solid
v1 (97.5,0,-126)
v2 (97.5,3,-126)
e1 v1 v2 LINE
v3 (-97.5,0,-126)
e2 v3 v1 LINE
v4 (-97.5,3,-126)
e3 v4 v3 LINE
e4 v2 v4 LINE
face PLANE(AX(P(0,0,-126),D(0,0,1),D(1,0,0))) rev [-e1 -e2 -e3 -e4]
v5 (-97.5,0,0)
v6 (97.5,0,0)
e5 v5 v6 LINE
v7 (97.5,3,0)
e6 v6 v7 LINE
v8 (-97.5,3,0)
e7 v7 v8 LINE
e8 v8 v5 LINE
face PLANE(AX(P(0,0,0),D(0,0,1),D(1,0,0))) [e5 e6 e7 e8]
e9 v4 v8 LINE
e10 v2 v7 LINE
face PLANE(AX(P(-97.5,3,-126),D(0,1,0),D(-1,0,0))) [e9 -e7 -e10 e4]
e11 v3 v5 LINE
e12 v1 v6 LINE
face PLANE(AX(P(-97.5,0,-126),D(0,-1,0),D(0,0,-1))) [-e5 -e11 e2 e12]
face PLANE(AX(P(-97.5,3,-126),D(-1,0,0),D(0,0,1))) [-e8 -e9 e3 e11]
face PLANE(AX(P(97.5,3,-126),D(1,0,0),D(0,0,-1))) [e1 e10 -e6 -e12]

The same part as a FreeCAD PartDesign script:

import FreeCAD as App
import Part
import Sketcher

doc = App.newDocument("Part")
params = doc.addObject("Spreadsheet::Sheet", "Params")
for row, (alias, value) in enumerate([
    ("sketch1_width", "195 mm"),
    ("sketch1_height", "3 mm"),
    ("pad1_length", "126 mm"),
], start=1):
    params.set(f"A{row}", alias)
    params.set(f"B{row}", "=" + value)
    params.setAlias(f"B{row}", alias)

body = doc.addObject("PartDesign::Body", "Body")

sketch1 = body.newObject("Sketcher::SketchObject", "Sketch")
sketch1.AttachmentSupport = (doc.getObject("XY_Plane"), [""])
sketch1.MapMode = "FlatFace"
sketch1.addGeometry(Part.LineSegment(App.Vector(-97.5, 3, 0), App.Vector(-97.5, 0, 0)), False)
sketch1.addGeometry(Part.LineSegment(App.Vector(-97.5, 0, 0), App.Vector(97.5, 0, 0)), False)
sketch1.addGeometry(Part.LineSegment(App.Vector(97.5, 0, 0), App.Vector(97.5, 3, 0)), False)
sketch1.addGeometry(Part.LineSegment(App.Vector(97.5, 3, 0), App.Vector(-97.5, 3, 0)), False)
sketch1.addConstraint(Sketcher.Constraint("Coincident", 0, 2, 1, 1))
sketch1.addConstraint(Sketcher.Constraint("Coincident", 1, 2, 2, 1))
sketch1.addConstraint(Sketcher.Constraint("Coincident", 2, 2, 3, 1))
sketch1.addConstraint(Sketcher.Constraint("Coincident", 3, 2, 0, 1))
sketch1.addConstraint(Sketcher.Constraint("Vertical", 0))
sketch1.addConstraint(Sketcher.Constraint("Horizontal", 1))
sketch1.addConstraint(Sketcher.Constraint("Vertical", 2))
sketch1.addConstraint(Sketcher.Constraint("Horizontal", 3))
sketch1.addConstraint(Sketcher.Constraint("Symmetric", 0, 2, 1, 2, -1, 1))
sketch1.addConstraint(Sketcher.Constraint("DistanceX", 1, 1, 1, 2, 195.0))
sketch1.addConstraint(Sketcher.Constraint("DistanceY", 0, 2, 0, 1, 3.0))
sketch1.setExpression("Constraints[9]", "Params.sketch1_width")
sketch1.setExpression("Constraints[10]", "Params.sketch1_height")
pad1 = body.newObject("PartDesign::Pad", "Pad")
pad1.Profile = sketch1
pad1.setExpression("Length", "Params.pad1_length")
pad1.Reversed = True

doc.recompute()
